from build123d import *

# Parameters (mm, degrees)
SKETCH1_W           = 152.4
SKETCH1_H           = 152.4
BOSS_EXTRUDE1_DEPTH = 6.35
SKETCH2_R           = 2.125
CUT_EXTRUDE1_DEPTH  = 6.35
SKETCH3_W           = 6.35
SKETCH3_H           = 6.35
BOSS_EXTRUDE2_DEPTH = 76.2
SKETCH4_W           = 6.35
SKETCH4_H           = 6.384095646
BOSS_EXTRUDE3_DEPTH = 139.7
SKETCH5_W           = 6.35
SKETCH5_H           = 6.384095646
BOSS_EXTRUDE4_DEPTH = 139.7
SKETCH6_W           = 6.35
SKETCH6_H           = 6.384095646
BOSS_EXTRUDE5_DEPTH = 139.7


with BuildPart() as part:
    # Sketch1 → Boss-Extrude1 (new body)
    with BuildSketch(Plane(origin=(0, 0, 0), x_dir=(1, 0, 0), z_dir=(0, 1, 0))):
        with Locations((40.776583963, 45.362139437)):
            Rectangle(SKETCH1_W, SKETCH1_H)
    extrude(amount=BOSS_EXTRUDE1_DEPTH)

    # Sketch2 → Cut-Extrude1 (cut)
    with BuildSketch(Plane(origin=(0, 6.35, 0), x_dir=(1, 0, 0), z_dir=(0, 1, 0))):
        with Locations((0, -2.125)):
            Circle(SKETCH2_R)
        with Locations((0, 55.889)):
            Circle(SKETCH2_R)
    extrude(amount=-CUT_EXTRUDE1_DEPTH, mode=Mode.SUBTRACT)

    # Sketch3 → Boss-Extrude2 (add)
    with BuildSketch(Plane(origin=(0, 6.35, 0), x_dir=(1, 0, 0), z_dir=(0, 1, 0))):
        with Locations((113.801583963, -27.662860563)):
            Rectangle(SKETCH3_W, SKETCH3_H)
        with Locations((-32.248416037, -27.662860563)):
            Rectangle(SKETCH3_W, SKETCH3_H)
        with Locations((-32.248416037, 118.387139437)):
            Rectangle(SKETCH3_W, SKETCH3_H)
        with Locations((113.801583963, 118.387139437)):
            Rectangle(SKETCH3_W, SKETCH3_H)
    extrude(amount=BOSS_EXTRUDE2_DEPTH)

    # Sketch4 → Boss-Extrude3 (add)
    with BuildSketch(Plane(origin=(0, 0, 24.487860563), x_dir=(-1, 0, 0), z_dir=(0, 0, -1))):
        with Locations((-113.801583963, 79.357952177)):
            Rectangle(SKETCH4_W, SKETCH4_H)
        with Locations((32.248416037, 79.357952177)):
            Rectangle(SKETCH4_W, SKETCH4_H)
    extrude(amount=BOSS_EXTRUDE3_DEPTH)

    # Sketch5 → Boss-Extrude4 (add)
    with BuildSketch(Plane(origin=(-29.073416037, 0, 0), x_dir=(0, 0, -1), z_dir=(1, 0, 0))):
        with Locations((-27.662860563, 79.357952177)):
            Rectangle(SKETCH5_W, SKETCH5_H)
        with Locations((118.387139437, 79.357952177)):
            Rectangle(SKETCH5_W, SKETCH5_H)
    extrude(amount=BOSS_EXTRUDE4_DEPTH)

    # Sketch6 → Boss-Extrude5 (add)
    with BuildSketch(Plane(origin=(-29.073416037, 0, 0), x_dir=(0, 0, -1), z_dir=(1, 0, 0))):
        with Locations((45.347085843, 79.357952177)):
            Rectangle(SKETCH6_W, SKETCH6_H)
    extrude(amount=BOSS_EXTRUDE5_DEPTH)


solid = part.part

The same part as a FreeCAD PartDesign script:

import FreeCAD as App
import Part
import Sketcher
from FreeCAD import Vector
Q = App.Units.Quantity

doc = App.newDocument("Part")
body = doc.addObject("PartDesign::Body", "Body")

sketch1 = body.newObject("Sketcher::SketchObject", "Sketch")
sketch1.AttachmentSupport = (doc.getObject("XZ_Plane"), [""])
sketch1.MapMode = "FlatFace"
sketch1.addGeometry([
    Part.LineSegment(Vector(-35, -122, 0), Vector(-35, 31, 0)),
    Part.LineSegment(Vector(-35, 31, 0), Vector(117, 31, 0)),
    Part.LineSegment(Vector(117, 31, 0), Vector(117, -122, 0)),
    Part.LineSegment(Vector(117, -122, 0), Vector(-35, -122, 0)),
], False)
sketch1.addConstraint([
    Sketcher.Constraint("Coincident", 0, 2, 1, 1),
    Sketcher.Constraint("Coincident", 1, 2, 2, 1),
    Sketcher.Constraint("Coincident", 2, 2, 3, 1),
    Sketcher.Constraint("Coincident", 3, 2, 0, 1),
    Sketcher.Constraint("Vertical", 0),
    Sketcher.Constraint("Horizontal", 1),
    Sketcher.Constraint("Vertical", 2),
    Sketcher.Constraint("Horizontal", 3),
    Sketcher.Constraint("Equal", 3, 0),
    Sketcher.Constraint("DistanceX", 1, 1, 1, 2, Q("6 in")),
    Sketcher.Constraint("DistanceY", -1, 1, 0, 2, Q("30.837861 mm")),
    Sketcher.Constraint("DistanceX", 0, 2, -1, 1, Q("35.423416 mm")),
])
pad1 = body.newObject("PartDesign::Pad", "Pad")
pad1.Profile = sketch1
pad1.Length = Q("0.25 in")
pad1.Reversed = True

sketch2 = body.newObject("Sketcher::SketchObject", "Sketch001")
sketch2.AttachmentSupport = (doc.getObject("XZ_Plane"), [""])
sketch2.MapMode = "FlatFace"
sketch2.AttachmentOffset = App.Placement(Vector(0, 0, -0.25 * 25.4), App.Rotation())
sketch2.addGeometry([
    Part.Circle(Vector(0, 2.1, 0), Vector(0, 0, 1), 2.1),
    Part.Circle(Vector(0, -55.9, 0), Vector(0, 0, 1), 2.1),
], False)
sketch2.addConstraint([
    Sketcher.Constraint("Equal", 0, 1),
    Sketcher.Constraint("PointOnObject", 0, 3, -2),
    Sketcher.Constraint("PointOnObject", 1, 3, -2),
    Sketcher.Constraint("Diameter", 0, Q("4.25 mm")),
    Sketcher.Constraint("DistanceY", -1, 1, 0, 3, Q("2.125 mm")),
    Sketcher.Constraint("DistanceY", 1, 3, -1, 1, Q("55.889 mm")),
])
pocket1 = body.newObject("PartDesign::Pocket", "Pocket")
pocket1.Profile = sketch2
pocket1.Length = Q("0.25 in")
pocket1.Reversed = True

sketch3 = body.newObject("Sketcher::SketchObject", "Sketch002")
sketch3.AttachmentSupport = (doc.getObject("XZ_Plane"), [""])
sketch3.MapMode = "FlatFace"
sketch3.AttachmentOffset = App.Placement(Vector(0, 0, -0.25 * 25.4), App.Rotation())
sketch3.addGeometry([
    Part.LineSegment(Vector(111, 24, 0), Vector(111, 31, 0)),
    Part.LineSegment(Vector(111, 31, 0), Vector(117, 31, 0)),
    Part.LineSegment(Vector(117, 31, 0), Vector(117, 24, 0)),
    Part.LineSegment(Vector(117, 24, 0), Vector(111, 24, 0)),
    Part.LineSegment(Vector(-35, 24, 0), Vector(-35, 31, 0)),
    Part.LineSegment(Vector(-35, 31, 0), Vector(-29, 31, 0)),
    Part.LineSegment(Vector(-29, 31, 0), Vector(-29, 24, 0)),
    Part.LineSegment(Vector(-29, 24, 0), Vector(-35, 24, 0)),
    Part.LineSegment(Vector(-35, -122, 0), Vector(-35, -115, 0)),
    Part.LineSegment(Vector(-35, -115, 0), Vector(-29, -115, 0)),
    Part.LineSegment(Vector(-29, -115, 0), Vector(-29, -122, 0)),
    Part.LineSegment(Vector(-29, -122, 0), Vector(-35, -122, 0)),
    Part.LineSegment(Vector(111, -122, 0), Vector(111, -115, 0)),
    Part.LineSegment(Vector(111, -115, 0), Vector(117, -115, 0)),
    Part.LineSegment(Vector(117, -115, 0), Vector(117, -122, 0)),
    Part.LineSegment(Vector(117, -122, 0), Vector(111, -122, 0)),
], False)
sketch3.addConstraint([
    Sketcher.Constraint("Coincident", 0, 2, 1, 1),
    Sketcher.Constraint("Coincident", 1, 2, 2, 1),
    Sketcher.Constraint("Coincident", 2, 2, 3, 1),
    Sketcher.Constraint("Coincident", 3, 2, 0, 1),
    Sketcher.Constraint("Coincident", 4, 2, 5, 1),
    Sketcher.Constraint("Coincident", 5, 2, 6, 1),
    Sketcher.Constraint("Coincident", 6, 2, 7, 1),
    Sketcher.Constraint("Coincident", 7, 2, 4, 1),
    Sketcher.Constraint("Coincident", 8, 2, 9, 1),
    Sketcher.Constraint("Coincident", 9, 2, 10, 1),
    Sketcher.Constraint("Coincident", 10, 2, 11, 1),
    Sketcher.Constraint("Coincident", 11, 2, 8, 1),
    Sketcher.Constraint("Coincident", 12, 2, 13, 1),
    Sketcher.Constraint("Coincident", 13, 2, 14, 1),
    Sketcher.Constraint("Coincident", 14, 2, 15, 1),
    Sketcher.Constraint("Coincident", 15, 2, 12, 1),
    Sketcher.Constraint("Vertical", 0),
    Sketcher.Constraint("Horizontal", 1),
    Sketcher.Constraint("Vertical", 2),
    Sketcher.Constraint("Horizontal", 3),
    Sketcher.Constraint("Vertical", 4),
    Sketcher.Constraint("Horizontal", 5),
    Sketcher.Constraint("Vertical", 6),
    Sketcher.Constraint("Horizontal", 7),
    Sketcher.Constraint("Vertical", 8),
    Sketcher.Constraint("Horizontal", 9),
    Sketcher.Constraint("Vertical", 10),
    Sketcher.Constraint("Horizontal", 11),
    Sketcher.Constraint("Vertical", 12),
    Sketcher.Constraint("Horizontal", 13),
    Sketcher.Constraint("Vertical", 14),
    Sketcher.Constraint("Horizontal", 15),
    Sketcher.Constraint("Horizontal", 1, 2, 4, 2),
    Sketcher.Constraint("Horizontal", 3, 2, 6, 2),
    Sketcher.Constraint("Horizontal", 9, 2, 12, 2),
    Sketcher.Constraint("Horizontal", 11, 2, 14, 2),
    Sketcher.Constraint("Vertical", 7, 2, 8, 2),
    Sketcher.Constraint("Vertical", 6, 2, 9, 2),
    Sketcher.Constraint("Vertical", 3, 2, 12, 2),
    Sketcher.Constraint("Vertical", 2, 2, 13, 2),
    Sketcher.Constraint("Equal", 3, 5),
    Sketcher.Constraint("Equal", 15, 0),
    Sketcher.Constraint("Equal", 6, 8),
    Sketcher.Constraint("DistanceX", 4, 2, 1, 2, Q("6 in")),
    Sketcher.Constraint("DistanceY", 10, 2, 5, 2, Q("6 in")),
    Sketcher.Constraint("DistanceX", 1, 1, 1, 2, Q("0.25 in")),
    Sketcher.Constraint("DistanceY", -1, 1, 0, 2, Q("30.837861 mm")),
    Sketcher.Constraint("DistanceX", -1, 1, 0, 2, Q("110.626584 mm")),
])
pad2 = body.newObject("PartDesign::Pad", "Pad001")
pad2.Profile = sketch3
pad2.Length = Q("3 in")
pad2.Reversed = True

sketch4 = body.newObject("Sketcher::SketchObject", "Sketch003")
sketch4.AttachmentSupport = (doc.getObject("XY_Plane"), [""])
sketch4.MapMode = "FlatFace"
sketch4.AttachmentOffset = App.Placement(Vector(0, 0, 24.487861), App.Rotation())
sketch4.addGeometry([
    Part.LineSegment(Vector(117, 83, 0), Vector(117, 76, 0)),
    Part.LineSegment(Vector(117, 76, 0), Vector(111, 76, 0)),
    Part.LineSegment(Vector(111, 76, 0), Vector(111, 83, 0)),
    Part.LineSegment(Vector(111, 83, 0), Vector(117, 83, 0)),
    Part.LineSegment(Vector(-29, 83, 0), Vector(-29, 76, 0)),
    Part.LineSegment(Vector(-29, 76, 0), Vector(-35, 76, 0)),
    Part.LineSegment(Vector(-35, 76, 0), Vector(-35, 83, 0)),
    Part.LineSegment(Vector(-35, 83, 0), Vector(-29, 83, 0)),
], False)
sketch4.addConstraint([
    Sketcher.Constraint("Coincident", 0, 2, 1, 1),
    Sketcher.Constraint("Coincident", 1, 2, 2, 1),
    Sketcher.Constraint("Coincident", 2, 2, 3, 1),
    Sketcher.Constraint("Coincident", 3, 2, 0, 1),
    Sketcher.Constraint("Coincident", 4, 2, 5, 1),
    Sketcher.Constraint("Coincident", 5, 2, 6, 1),
    Sketcher.Constraint("Coincident", 6, 2, 7, 1),
    Sketcher.Constraint("Coincident", 7, 2, 4, 1),
    Sketcher.Constraint("Vertical", 0),
    Sketcher.Constraint("Horizontal", 1),
    Sketcher.Constraint("Vertical", 2),
    Sketcher.Constraint("Horizontal", 3),
    Sketcher.Constraint("Vertical", 4),
    Sketcher.Constraint("Horizontal", 5),
    Sketcher.Constraint("Vertical", 6),
    Sketcher.Constraint("Horizontal", 7),
    Sketcher.Constraint("Horizontal", 1, 2, 4, 2),
    Sketcher.Constraint("Horizontal", 3, 2, 6, 2),
    Sketcher.Constraint("Equal", 3, 5),
    Sketcher.Constraint("DistanceX", 5, 2, 0, 2, Q("6 in")),
    Sketcher.Constraint("DistanceX", 1, 2, 1, 1, Q("0.25 in")),
    Sketcher.Constraint("DistanceY", -1, 1, 2, 2, Q("3.25 in")),
    Sketcher.Constraint("DistanceY", 0, 2, 0, 1, Q("6.384096 mm")),
    Sketcher.Constraint("DistanceX", -1, 1, 0, 2, Q("116.976584 mm")),
])
pad3 = body.newObject("PartDesign::Pad", "Pad002")
pad3.Profile = sketch4
pad3.Length = Q("5.5 in")
pad3.Reversed = True

sketch5 = body.newObject("Sketcher::SketchObject", "Sketch004")
sketch5.AttachmentSupport = (doc.getObject("YZ_Plane"), [""])
sketch5.MapMode = "FlatFace"
sketch5.AttachmentOffset = App.Placement(Vector(0, 0, -29.073416), App.Rotation())
sketch5.addGeometry([
    Part.LineSegment(Vector(83, 31, 0), Vector(76, 31, 0)),
    Part.LineSegment(Vector(76, 31, 0), Vector(76, 24, 0)),
    Part.LineSegment(Vector(76, 24, 0), Vector(83, 24, 0)),
    Part.LineSegment(Vector(83, 24, 0), Vector(83, 31, 0)),
    Part.LineSegment(Vector(83, -115, 0), Vector(76, -115, 0)),
    Part.LineSegment(Vector(76, -115, 0), Vector(76, -122, 0)),
    Part.LineSegment(Vector(76, -122, 0), Vector(83, -122, 0)),
    Part.LineSegment(Vector(83, -122, 0), Vector(83, -115, 0)),
], False)
sketch5.addConstraint([
    Sketcher.Constraint("Coincident", 0, 2, 1, 1),
    Sketcher.Constraint("Coincident", 1, 2, 2, 1),
    Sketcher.Constraint("Coincident", 2, 2, 3, 1),
    Sketcher.Constraint("Coincident", 3, 2, 0, 1),
    Sketcher.Constraint("Coincident", 4, 2, 5, 1),
    Sketcher.Constraint("Coincident", 5, 2, 6, 1),
    Sketcher.Constraint("Coincident", 6, 2, 7, 1),
    Sketcher.Constraint("Coincident", 7, 2, 4, 1),
    Sketcher.Constraint("Horizontal", 0),
    Sketcher.Constraint("Vertical", 1),
    Sketcher.Constraint("Horizontal", 2),
    Sketcher.Constraint("Vertical", 3),
    Sketcher.Constraint("Horizontal", 4),
    Sketcher.Constraint("Vertical", 5),
    Sketcher.Constraint("Horizontal", 6),
    Sketcher.Constraint("Vertical", 7),
    Sketcher.Constraint("Vertical", 1, 2, 4, 2),
    Sketcher.Constraint("Vertical", 3, 2, 6, 2),
    Sketcher.Constraint("Equal", 3, 5),
    Sketcher.Constraint("DistanceY", 5, 2, 0, 2, Q("6 in")),
    Sketcher.Constraint("DistanceY", 1, 2, 1, 1, Q("0.25 in")),
    Sketcher.Constraint("DistanceX", -1, 1, 2, 2, Q("3.25 in")),
    Sketcher.Constraint("DistanceX", 0, 2, 0, 1, Q("6.384096 mm")),
    Sketcher.Constraint("DistanceY", -1, 1, 0, 2, Q("30.837861 mm")),
])
pad4 = body.newObject("PartDesign::Pad", "Pad003")
pad4.Profile = sketch5
pad4.Length = Q("5.5 in")

sketch6 = body.newObject("Sketcher::SketchObject", "Sketch005")
sketch6.AttachmentSupport = (doc.getObject("YZ_Plane"), [""])
sketch6.MapMode = "FlatFace"
sketch6.AttachmentOffset = App.Placement(Vector(0, 0, -29.073416), App.Rotation())
sketch6.addGeometry([
    Part.LineSegment(Vector(83, -42, 0), Vector(76, -42, 0)),
    Part.LineSegment(Vector(76, -42, 0), Vector(76, -49, 0)),
    Part.LineSegment(Vector(76, -49, 0), Vector(83, -49, 0)),
    Part.LineSegment(Vector(83, -49, 0), Vector(83, -42, 0)),
], False)
sketch6.addConstraint([
    Sketcher.Constraint("Coincident", 0, 2, 1, 1),
    Sketcher.Constraint("Coincident", 1, 2, 2, 1),
    Sketcher.Constraint("Coincident", 2, 2, 3, 1),
    Sketcher.Constraint("Coincident", 3, 2, 0, 1),
    Sketcher.Constraint("Horizontal", 0),
    Sketcher.Constraint("Vertical", 1),
    Sketcher.Constraint("Horizontal", 2),
    Sketcher.Constraint("Vertical", 3),
    Sketcher.Constraint("DistanceY", 1, 2, 1, 1, Q("0.25 in")),
    Sketcher.Constraint("DistanceX", -1, 1, 2, 2, Q("3.25 in")),
    Sketcher.Constraint("DistanceX", 0, 2, 0, 1, Q("6.384096 mm")),
    Sketcher.Constraint("DistanceY", 0, 2, -1, 1, Q("42.172086 mm")),
])
pad5 = body.newObject("PartDesign::Pad", "Pad004")
pad5.Profile = sketch6
pad5.Length = Q("5.5 in")

doc.recompute()
